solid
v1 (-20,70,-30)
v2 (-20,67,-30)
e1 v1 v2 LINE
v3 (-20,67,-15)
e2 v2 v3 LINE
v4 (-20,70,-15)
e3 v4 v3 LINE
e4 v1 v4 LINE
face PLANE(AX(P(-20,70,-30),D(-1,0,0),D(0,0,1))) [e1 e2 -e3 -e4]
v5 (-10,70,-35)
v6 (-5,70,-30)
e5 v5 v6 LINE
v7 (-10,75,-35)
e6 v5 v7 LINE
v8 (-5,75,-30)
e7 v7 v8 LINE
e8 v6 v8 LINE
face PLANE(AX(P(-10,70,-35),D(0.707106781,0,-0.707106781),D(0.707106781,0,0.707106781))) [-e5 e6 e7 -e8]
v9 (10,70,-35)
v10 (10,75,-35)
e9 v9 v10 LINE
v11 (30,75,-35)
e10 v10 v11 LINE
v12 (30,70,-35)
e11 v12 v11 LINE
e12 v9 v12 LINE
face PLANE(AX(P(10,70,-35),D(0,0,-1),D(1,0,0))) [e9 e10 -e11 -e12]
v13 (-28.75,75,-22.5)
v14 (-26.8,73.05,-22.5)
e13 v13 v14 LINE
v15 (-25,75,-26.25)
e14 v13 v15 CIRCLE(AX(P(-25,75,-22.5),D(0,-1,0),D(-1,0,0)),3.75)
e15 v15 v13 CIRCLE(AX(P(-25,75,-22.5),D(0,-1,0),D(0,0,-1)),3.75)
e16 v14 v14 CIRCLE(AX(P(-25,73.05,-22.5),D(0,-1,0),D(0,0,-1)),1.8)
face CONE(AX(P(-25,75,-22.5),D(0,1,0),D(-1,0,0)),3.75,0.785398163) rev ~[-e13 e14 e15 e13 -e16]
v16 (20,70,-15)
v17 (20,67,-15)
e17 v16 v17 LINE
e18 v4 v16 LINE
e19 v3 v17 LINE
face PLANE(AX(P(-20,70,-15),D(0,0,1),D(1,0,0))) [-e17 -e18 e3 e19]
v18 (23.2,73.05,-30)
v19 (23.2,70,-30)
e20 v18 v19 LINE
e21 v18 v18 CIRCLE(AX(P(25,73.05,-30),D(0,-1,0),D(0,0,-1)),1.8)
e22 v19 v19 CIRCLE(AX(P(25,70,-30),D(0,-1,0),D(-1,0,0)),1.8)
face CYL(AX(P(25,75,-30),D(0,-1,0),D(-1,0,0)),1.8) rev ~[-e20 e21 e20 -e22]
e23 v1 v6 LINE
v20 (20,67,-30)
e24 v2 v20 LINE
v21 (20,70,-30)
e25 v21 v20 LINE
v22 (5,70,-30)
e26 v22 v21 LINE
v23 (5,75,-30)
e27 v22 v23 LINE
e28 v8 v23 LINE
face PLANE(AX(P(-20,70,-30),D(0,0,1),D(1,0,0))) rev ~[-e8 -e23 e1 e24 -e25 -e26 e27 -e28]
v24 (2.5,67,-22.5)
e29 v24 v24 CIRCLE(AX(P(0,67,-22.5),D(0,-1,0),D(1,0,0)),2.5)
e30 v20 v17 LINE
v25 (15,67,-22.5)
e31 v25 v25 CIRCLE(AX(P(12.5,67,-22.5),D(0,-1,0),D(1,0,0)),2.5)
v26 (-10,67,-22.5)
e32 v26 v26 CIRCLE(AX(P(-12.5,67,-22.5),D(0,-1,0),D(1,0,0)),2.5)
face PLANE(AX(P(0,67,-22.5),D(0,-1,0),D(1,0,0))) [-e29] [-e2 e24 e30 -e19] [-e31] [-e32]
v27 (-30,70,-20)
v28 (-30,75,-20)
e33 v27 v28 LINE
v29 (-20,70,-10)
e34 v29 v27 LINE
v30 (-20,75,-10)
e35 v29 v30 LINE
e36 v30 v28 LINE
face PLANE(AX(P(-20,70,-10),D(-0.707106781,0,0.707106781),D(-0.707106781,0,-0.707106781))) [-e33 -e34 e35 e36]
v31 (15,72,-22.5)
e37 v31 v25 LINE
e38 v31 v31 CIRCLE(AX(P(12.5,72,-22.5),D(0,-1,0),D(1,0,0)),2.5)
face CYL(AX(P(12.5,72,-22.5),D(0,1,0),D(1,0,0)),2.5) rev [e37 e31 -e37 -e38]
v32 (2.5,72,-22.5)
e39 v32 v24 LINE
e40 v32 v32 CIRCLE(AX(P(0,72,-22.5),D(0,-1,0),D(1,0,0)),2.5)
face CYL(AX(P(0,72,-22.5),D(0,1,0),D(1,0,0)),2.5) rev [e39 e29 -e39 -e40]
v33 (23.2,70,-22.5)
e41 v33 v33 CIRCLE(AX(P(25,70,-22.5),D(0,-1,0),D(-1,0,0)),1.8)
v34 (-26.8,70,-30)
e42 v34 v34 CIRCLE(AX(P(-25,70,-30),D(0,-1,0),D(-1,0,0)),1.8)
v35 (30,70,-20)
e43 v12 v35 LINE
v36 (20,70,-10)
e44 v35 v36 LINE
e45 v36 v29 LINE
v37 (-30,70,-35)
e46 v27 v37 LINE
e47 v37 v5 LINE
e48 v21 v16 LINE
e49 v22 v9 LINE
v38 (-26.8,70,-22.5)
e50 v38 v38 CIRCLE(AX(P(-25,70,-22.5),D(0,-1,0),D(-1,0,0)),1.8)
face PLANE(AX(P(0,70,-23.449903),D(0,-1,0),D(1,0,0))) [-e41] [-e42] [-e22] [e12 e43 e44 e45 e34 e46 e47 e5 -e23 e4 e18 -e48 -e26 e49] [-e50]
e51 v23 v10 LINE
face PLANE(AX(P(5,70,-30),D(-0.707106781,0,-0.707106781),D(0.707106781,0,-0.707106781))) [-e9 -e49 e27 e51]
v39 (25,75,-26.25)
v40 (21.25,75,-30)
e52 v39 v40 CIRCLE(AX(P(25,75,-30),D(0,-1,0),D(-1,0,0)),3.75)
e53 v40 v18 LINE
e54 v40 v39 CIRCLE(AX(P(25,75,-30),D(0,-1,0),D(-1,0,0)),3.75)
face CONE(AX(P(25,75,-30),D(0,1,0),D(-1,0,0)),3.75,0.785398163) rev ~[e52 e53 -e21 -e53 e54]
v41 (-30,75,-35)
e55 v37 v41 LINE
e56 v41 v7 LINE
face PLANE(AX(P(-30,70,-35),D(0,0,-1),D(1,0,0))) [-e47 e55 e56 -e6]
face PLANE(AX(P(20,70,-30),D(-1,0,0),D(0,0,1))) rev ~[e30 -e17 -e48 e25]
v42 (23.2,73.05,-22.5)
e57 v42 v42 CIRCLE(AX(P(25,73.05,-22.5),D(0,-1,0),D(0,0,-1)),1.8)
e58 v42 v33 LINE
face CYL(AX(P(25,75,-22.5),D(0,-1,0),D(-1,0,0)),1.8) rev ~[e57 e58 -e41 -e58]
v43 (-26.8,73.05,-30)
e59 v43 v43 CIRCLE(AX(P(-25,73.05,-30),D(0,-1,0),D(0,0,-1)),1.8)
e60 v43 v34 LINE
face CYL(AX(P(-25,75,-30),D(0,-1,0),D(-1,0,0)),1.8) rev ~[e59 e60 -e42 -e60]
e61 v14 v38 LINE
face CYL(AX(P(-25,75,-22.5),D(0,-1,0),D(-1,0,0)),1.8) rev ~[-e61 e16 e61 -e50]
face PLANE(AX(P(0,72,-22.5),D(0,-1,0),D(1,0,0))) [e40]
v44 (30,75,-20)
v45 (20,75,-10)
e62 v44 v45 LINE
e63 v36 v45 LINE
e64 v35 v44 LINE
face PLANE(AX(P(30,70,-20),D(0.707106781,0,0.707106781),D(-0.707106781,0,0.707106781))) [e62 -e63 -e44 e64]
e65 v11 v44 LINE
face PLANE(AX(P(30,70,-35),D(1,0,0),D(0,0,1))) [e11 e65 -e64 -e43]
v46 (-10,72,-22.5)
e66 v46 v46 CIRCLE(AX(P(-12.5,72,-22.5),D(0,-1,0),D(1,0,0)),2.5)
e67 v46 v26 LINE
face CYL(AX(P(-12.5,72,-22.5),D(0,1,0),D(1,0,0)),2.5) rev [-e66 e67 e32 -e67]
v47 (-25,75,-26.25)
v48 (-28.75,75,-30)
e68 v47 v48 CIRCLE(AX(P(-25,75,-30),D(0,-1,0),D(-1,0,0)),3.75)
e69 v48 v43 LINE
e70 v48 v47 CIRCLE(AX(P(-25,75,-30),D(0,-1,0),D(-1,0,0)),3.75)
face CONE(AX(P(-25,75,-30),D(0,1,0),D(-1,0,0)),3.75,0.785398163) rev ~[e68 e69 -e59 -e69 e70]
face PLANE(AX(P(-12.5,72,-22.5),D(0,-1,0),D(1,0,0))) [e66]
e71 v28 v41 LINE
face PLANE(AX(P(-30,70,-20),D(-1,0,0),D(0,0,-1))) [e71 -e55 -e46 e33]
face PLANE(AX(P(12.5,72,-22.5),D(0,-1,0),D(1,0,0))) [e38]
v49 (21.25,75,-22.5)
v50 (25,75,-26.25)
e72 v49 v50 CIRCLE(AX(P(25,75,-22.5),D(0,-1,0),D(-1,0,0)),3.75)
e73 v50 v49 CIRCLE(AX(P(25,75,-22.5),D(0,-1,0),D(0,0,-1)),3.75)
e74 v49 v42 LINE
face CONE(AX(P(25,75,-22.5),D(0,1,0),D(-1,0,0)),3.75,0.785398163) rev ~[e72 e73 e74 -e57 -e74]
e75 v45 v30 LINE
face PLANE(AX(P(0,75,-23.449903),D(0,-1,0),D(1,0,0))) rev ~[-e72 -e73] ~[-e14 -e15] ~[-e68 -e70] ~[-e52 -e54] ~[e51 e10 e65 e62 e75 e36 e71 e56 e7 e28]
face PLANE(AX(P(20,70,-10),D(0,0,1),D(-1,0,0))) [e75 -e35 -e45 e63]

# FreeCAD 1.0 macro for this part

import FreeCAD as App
import Part
import Sketcher
Q = App.Units.Quantity


def add_polygon(sketch, points):
    """Adds a closed chain of lines whose ends are joined by coincident constraints."""
    first, n = sketch.GeometryCount, len(points)
    for a, b in zip(points, points[1:] + points[:1]):
        sketch.addGeometry(Part.LineSegment(App.Vector(*a, 0), App.Vector(*b, 0)), False)
    for i in range(n):
        sketch.addConstraint(Sketcher.Constraint("Coincident", first + i, 2, first + (i + 1) % n, 1))

doc = App.newDocument("Part")
body = doc.addObject("PartDesign::Body", "Body")

sketch1 = body.newObject("Sketcher::SketchObject", "Sketch")
sketch1.AttachmentSupport = (doc.getObject("XZ_Plane"), [""])
sketch1.MapMode = "FlatFace"
sketch1.AttachmentOffset = App.Placement(App.Vector(0, 0, -70), App.Rotation())
add_polygon(sketch1, [(-30, -20), (-30, -35), (-10, -35), (-5, -30), (5, -30), (10, -35), (30, -35), (30, -20), (20, -10), (-20, -10)])
sketch1.addConstraint(Sketcher.Constraint("Vertical", 0))
sketch1.addConstraint(Sketcher.Constraint("Horizontal", 1))
sketch1.addConstraint(Sketcher.Constraint("Horizontal", 3))
sketch1.addConstraint(Sketcher.Constraint("Horizontal", 5))
sketch1.addConstraint(Sketcher.Constraint("Vertical", 6))
sketch1.addConstraint(Sketcher.Constraint("Horizontal", 8))
sketch1.addConstraint(Sketcher.Constraint("Symmetric", 1, 2, 4, 2, -2))
sketch1.addConstraint(Sketcher.Constraint("Symmetric", 6, 2, 9, 2, -2))
sketch1.addConstraint(Sketcher.Constraint("Perpendicular", 2, 4))
sketch1.addConstraint(Sketcher.Constraint("Parallel", 4, 7))
sketch1.addConstraint(Sketcher.Constraint("Perpendicular", 7, 9))
sketch1.addConstraint(Sketcher.Constraint("Equal", 2, 4))
sketch1.addConstraint(Sketcher.Constraint("DistanceX", 1, 1, 1, 2, Q("20 mm")))
sketch1.addConstraint(Sketcher.Constraint("DistanceX", 3, 1, 3, 2, Q("10 mm")))
sketch1.addConstraint(Sketcher.Constraint("DistanceX", 8, 2, 8, 1, Q("40 mm")))
sketch1.addConstraint(Sketcher.Constraint("DistanceY", 0, 2, 0, 1, Q("15 mm")))
sketch1.addConstraint(Sketcher.Constraint("DistanceX", 0, 2, -1, 1, Q("30 mm")))
sketch1.addConstraint(Sketcher.Constraint("DistanceY", 0, 2, -1, 1, Q("35 mm")))
pad1 = body.newObject("PartDesign::Pad", "Pad")
pad1.Profile = sketch1
pad1.Length = 5
pad1.Reversed = True

sketch2 = body.newObject("Sketcher::SketchObject", "Sketch001")
sketch2.AttachmentSupport = (doc.getObject("XZ_Plane"), [""])
sketch2.MapMode = "FlatFace"
sketch2.AttachmentOffset = App.Placement(App.Vector(0, 0, -75), App.Rotation())
sketch2.addGeometry(Part.Circle(App.Vector(25, -22.5, 0), App.Vector(0, 0, 1), 1.8), False)
sketch2.addGeometry(Part.Circle(App.Vector(25, -30, 0), App.Vector(0, 0, 1), 1.8), False)
sketch2.addGeometry(Part.Circle(App.Vector(-25, -30, 0), App.Vector(0, 0, 1), 1.8), False)
sketch2.addGeometry(Part.Circle(App.Vector(-25, -22.5, 0), App.Vector(0, 0, 1), 1.8), False)
sketch2.addConstraint(Sketcher.Constraint("Equal", 0, 1))
sketch2.addConstraint(Sketcher.Constraint("Equal", 1, 2))
sketch2.addConstraint(Sketcher.Constraint("Equal", 2, 3))
sketch2.addConstraint(Sketcher.Constraint("Symmetric", 1, 3, 2, 3, -2))
sketch2.addConstraint(Sketcher.Constraint("Symmetric", 0, 3, 3, 3, -2))
sketch2.addConstraint(Sketcher.Constraint("Vertical", 0, 3, 1, 3))
sketch2.addConstraint(Sketcher.Constraint("Diameter", 0, Q("3.6 mm")))
sketch2.addConstraint(Sketcher.Constraint("DistanceX", -1, 1, 0, 3, Q("25 mm")))
sketch2.addConstraint(Sketcher.Constraint("DistanceY", 1, 3, -1, 1, Q("30 mm")))
sketch2.addConstraint(Sketcher.Constraint("DistanceY", 0, 3, -1, 1, Q("22.5 mm")))
doc.recompute()
hole = body.newObject("PartDesign::Hole", "Hole")
hole.Profile = sketch2
hole.ThreadType = "None"
hole.Diameter = 3.6
hole.DepthType = "Dimension"
hole.Depth = 25
hole.DrillPoint = "Flat"
hole.HoleCutType = "Countersink"
hole.HoleCutDiameter = 7.5
hole.HoleCutCountersinkAngle = 90
hole.Reversed = True

sketch3 = body.newObject("Sketcher::SketchObject", "Sketch002")
sketch3.AttachmentSupport = (doc.getObject("XZ_Plane"), [""])
sketch3.MapMode = "FlatFace"
sketch3.AttachmentOffset = App.Placement(App.Vector(0, 0, -70), App.Rotation())
add_polygon(sketch3, [(-20, -15), (-20, -30), (20, -30), (20, -15)])
sketch3.addConstraint(Sketcher.Constraint("Vertical", 0))
sketch3.addConstraint(Sketcher.Constraint("Horizontal", 1))
sketch3.addConstraint(Sketcher.Constraint("Vertical", 2))
sketch3.addConstraint(Sketcher.Constraint("Horizontal", 3))
sketch3.addConstraint(Sketcher.Constraint("DistanceX", 1, 1, 1, 2, Q("40 mm")))
sketch3.addConstraint(Sketcher.Constraint("DistanceY", 0, 2, 0, 1, Q("15 mm")))
sketch3.addConstraint(Sketcher.Constraint("DistanceX", 0, 2, -1, 1, Q("20 mm")))
sketch3.addConstraint(Sketcher.Constraint("DistanceY", 0, 2, -1, 1, Q("30 mm")))
pad2 = body.newObject("PartDesign::Pad", "Pad001")
pad2.Profile = sketch3
pad2.Length = 3

sketch4 = body.newObject("Sketcher::SketchObject", "Sketch003")
sketch4.AttachmentSupport = (doc.getObject("XZ_Plane"), [""])
sketch4.MapMode = "FlatFace"
sketch4.AttachmentOffset = App.Placement(App.Vector(0, 0, -72), App.Rotation())
sketch4.addGeometry(Part.Circle(App.Vector(-12.5, -22.5, 0), App.Vector(0, 0, 1), 2.5), False)
sketch4.addGeometry(Part.Circle(App.Vector(0, -22.5, 0), App.Vector(0, 0, 1), 2.5), False)
sketch4.addGeometry(Part.Circle(App.Vector(12.5, -22.5, 0), App.Vector(0, 0, 1), 2.5), False)
sketch4.addConstraint(Sketcher.Constraint("Equal", 0, 1))
sketch4.addConstraint(Sketcher.Constraint("Equal", 1, 2))
sketch4.addConstraint(Sketcher.Constraint("Symmetric", 0, 3, 2, 3, -2))
sketch4.addConstraint(Sketcher.Constraint("PointOnObject", 1, 3, -2))
sketch4.addConstraint(Sketcher.Constraint("Horizontal", 0, 3, 1, 3))
sketch4.addConstraint(Sketcher.Constraint("Diameter", 0, Q("5 mm")))
sketch4.addConstraint(Sketcher.Constraint("DistanceX", 0, 3, 2, 3, Q("25 mm")))
sketch4.addConstraint(Sketcher.Constraint("DistanceY", 0, 3, -1, 1, Q("22.5 mm")))
pocket1 = body.newObject("PartDesign::Pocket", "Pocket")
pocket1.Profile = sketch4
pocket1.Length = 5
pocket1.Reversed = True

doc.recompute()
